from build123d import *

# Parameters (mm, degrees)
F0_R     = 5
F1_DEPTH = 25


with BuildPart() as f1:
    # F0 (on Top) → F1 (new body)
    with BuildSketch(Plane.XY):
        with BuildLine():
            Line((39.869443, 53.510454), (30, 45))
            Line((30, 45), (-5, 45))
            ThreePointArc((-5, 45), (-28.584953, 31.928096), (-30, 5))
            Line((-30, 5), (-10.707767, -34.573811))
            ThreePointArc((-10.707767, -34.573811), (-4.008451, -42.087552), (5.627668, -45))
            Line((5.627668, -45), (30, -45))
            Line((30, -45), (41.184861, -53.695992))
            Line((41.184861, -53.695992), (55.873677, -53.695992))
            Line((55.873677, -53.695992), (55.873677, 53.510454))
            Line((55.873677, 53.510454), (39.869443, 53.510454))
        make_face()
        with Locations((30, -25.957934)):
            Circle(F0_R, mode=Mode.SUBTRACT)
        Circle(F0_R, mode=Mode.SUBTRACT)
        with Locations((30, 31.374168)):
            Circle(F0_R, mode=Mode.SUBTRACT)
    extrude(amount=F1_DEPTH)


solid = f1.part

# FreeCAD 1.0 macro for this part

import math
import FreeCAD as App
import Part
import Sketcher
from FreeCAD import Vector
Q = App.Units.Quantity

doc = App.newDocument("Part")
body = doc.addObject("PartDesign::Body", "Body")

# Sketch on XY plane
sketch1 = doc.addObject("Sketcher::SketchObject", "Sketch")
body.addObject(sketch1)
sketch1.AttachmentSupport = (doc.XY_Plane, [""])
sketch1.MapMode = "FlatFace"
sketch1.addGeometry(Part.LineSegment(Vector(40, 54, 0), Vector(30, 45, 0)), False)
sketch1.addGeometry(Part.LineSegment(Vector(30, 45, 0), Vector(-5, 45, 0)), False)
sketch1.addGeometry(Part.ArcOfCircle(Part.Circle(Vector(-5, 17, 0), Vector(0, 0, 1), 28), math.radians(90), math.radians(206)), False)
sketch1.addGeometry(Part.LineSegment(Vector(-30, 5, 0), Vector(-11, -35, 0)), False)
sketch1.addGeometry(Part.ArcOfCircle(Part.Circle(Vector(6, -26, 0), Vector(0, 0, 1), 19), math.radians(-154), math.radians(-91)), False)
sketch1.addGeometry(Part.LineSegment(Vector(6, -45, 0), Vector(30, -45, 0)), False)
sketch1.addGeometry(Part.LineSegment(Vector(30, -45, 0), Vector(41, -54, 0)), False)
sketch1.addGeometry(Part.LineSegment(Vector(41, -54, 0), Vector(56, -54, 0)), False)
sketch1.addGeometry(Part.LineSegment(Vector(56, -54, 0), Vector(56, 54, 0)), False)
sketch1.addGeometry(Part.LineSegment(Vector(56, 54, 0), Vector(40, 54, 0)), False)
sketch1.addGeometry(Part.Circle(Vector(0, 0, 0), Vector(0, 0, 1), 5), False)
sketch1.addGeometry(Part.Circle(Vector(30, -26, 0), Vector(0, 0, 1), 5), False)
sketch1.addGeometry(Part.Circle(Vector(30, 31, 0), Vector(0, 0, 1), 5), False)
sketch1.addConstraint(Sketcher.Constraint("Coincident", 0, 2, 1, 1))
sketch1.addConstraint(Sketcher.Constraint("Tangent", 1, 2, 2, 1))
sketch1.addConstraint(Sketcher.Constraint("Tangent", 2, 2, 3, 1))
sketch1.addConstraint(Sketcher.Constraint("Tangent", 3, 2, 4, 1))
sketch1.addConstraint(Sketcher.Constraint("Coincident", 4, 2, 5, 1))
sketch1.addConstraint(Sketcher.Constraint("Coincident", 5, 2, 6, 1))
sketch1.addConstraint(Sketcher.Constraint("Coincident", 6, 2, 7, 1))
sketch1.addConstraint(Sketcher.Constraint("Coincident", 7, 2, 8, 1))
sketch1.addConstraint(Sketcher.Constraint("Coincident", 8, 2, 9, 1))
sketch1.addConstraint(Sketcher.Constraint("Coincident", 9, 2, 0, 1))
sketch1.addConstraint(Sketcher.Constraint("Horizontal", 1))
sketch1.addConstraint(Sketcher.Constraint("Horizontal", 5))
sketch1.addConstraint(Sketcher.Constraint("Horizontal", 7))
sketch1.addConstraint(Sketcher.Constraint("Vertical", 8))
sketch1.addConstraint(Sketcher.Constraint("Horizontal", 9))
sketch1.addConstraint(Sketcher.Constraint("Coincident", 10, 3, -1, 1))
sketch1.addConstraint(Sketcher.Constraint("Equal", 10, 11))
sketch1.addConstraint(Sketcher.Constraint("Equal", 11, 12))
sketch1.addConstraint(Sketcher.Constraint("Symmetric", 0, 2, 5, 2, -1))
sketch1.addConstraint(Sketcher.Constraint("Vertical", 11, 3, 12, 3))
sketch1.addConstraint(Sketcher.Constraint("Vertical", 12, 3, 0, 2))
sketch1.addConstraint(Sketcher.Constraint("Diameter", 10, Q("10 mm")))
sketch1.addConstraint(Sketcher.Constraint("DistanceX", 1, 2, 1, 1, Q("35 mm")))
sketch1.addConstraint(Sketcher.Constraint("DistanceX", 2, 3, -1, 1, Q("5.000001 mm")))
sketch1.addConstraint(Sketcher.Constraint("DistanceY", -1, 1, 0, 2, Q("45 mm")))
sketch1.addConstraint(Sketcher.Constraint("DistanceX", 2, 2, -1, 1, Q("30 mm")))
sketch1.addConstraint(Sketcher.Constraint("DistanceY", -1, 1, 2, 2, Q("5 mm")))
sketch1.addConstraint(Sketcher.Constraint("Radius", 4, Q("18.564553 mm")))
sketch1.addConstraint(Sketcher.Constraint("DistanceX", 5, 1, 5, 2, Q("24.372332 mm")))
sketch1.addConstraint(Sketcher.Constraint("DistanceX", 7, 1, 7, 2, Q("14.688816 mm")))
sketch1.addConstraint(Sketcher.Constraint("DistanceX", 9, 2, 9, 1, Q("16.004234 mm")))
sketch1.addConstraint(Sketcher.Constraint("DistanceY", 8, 1, 8, 2, Q("107.206446 mm")))
sketch1.addConstraint(Sketcher.Constraint("DistanceY", -1, 1, 12, 3, Q("31.374168 mm")))
sketch1.addConstraint(Sketcher.Constraint("DistanceX", -1, 1, 6, 2, Q("41.184861 mm")))
sketch1.addConstraint(Sketcher.Constraint("DistanceY", 6, 2, -1, 1, Q("53.695992 mm")))
sketch1.addConstraint(Sketcher.Constraint("DistanceY", 11, 3, -1, 1, Q("25.957934 mm")))
pad1 = doc.addObject("PartDesign::Pad", "Pad")
body.addObject(pad1)
pad1.Profile = sketch1
pad1.Length = 25

doc.recompute()
